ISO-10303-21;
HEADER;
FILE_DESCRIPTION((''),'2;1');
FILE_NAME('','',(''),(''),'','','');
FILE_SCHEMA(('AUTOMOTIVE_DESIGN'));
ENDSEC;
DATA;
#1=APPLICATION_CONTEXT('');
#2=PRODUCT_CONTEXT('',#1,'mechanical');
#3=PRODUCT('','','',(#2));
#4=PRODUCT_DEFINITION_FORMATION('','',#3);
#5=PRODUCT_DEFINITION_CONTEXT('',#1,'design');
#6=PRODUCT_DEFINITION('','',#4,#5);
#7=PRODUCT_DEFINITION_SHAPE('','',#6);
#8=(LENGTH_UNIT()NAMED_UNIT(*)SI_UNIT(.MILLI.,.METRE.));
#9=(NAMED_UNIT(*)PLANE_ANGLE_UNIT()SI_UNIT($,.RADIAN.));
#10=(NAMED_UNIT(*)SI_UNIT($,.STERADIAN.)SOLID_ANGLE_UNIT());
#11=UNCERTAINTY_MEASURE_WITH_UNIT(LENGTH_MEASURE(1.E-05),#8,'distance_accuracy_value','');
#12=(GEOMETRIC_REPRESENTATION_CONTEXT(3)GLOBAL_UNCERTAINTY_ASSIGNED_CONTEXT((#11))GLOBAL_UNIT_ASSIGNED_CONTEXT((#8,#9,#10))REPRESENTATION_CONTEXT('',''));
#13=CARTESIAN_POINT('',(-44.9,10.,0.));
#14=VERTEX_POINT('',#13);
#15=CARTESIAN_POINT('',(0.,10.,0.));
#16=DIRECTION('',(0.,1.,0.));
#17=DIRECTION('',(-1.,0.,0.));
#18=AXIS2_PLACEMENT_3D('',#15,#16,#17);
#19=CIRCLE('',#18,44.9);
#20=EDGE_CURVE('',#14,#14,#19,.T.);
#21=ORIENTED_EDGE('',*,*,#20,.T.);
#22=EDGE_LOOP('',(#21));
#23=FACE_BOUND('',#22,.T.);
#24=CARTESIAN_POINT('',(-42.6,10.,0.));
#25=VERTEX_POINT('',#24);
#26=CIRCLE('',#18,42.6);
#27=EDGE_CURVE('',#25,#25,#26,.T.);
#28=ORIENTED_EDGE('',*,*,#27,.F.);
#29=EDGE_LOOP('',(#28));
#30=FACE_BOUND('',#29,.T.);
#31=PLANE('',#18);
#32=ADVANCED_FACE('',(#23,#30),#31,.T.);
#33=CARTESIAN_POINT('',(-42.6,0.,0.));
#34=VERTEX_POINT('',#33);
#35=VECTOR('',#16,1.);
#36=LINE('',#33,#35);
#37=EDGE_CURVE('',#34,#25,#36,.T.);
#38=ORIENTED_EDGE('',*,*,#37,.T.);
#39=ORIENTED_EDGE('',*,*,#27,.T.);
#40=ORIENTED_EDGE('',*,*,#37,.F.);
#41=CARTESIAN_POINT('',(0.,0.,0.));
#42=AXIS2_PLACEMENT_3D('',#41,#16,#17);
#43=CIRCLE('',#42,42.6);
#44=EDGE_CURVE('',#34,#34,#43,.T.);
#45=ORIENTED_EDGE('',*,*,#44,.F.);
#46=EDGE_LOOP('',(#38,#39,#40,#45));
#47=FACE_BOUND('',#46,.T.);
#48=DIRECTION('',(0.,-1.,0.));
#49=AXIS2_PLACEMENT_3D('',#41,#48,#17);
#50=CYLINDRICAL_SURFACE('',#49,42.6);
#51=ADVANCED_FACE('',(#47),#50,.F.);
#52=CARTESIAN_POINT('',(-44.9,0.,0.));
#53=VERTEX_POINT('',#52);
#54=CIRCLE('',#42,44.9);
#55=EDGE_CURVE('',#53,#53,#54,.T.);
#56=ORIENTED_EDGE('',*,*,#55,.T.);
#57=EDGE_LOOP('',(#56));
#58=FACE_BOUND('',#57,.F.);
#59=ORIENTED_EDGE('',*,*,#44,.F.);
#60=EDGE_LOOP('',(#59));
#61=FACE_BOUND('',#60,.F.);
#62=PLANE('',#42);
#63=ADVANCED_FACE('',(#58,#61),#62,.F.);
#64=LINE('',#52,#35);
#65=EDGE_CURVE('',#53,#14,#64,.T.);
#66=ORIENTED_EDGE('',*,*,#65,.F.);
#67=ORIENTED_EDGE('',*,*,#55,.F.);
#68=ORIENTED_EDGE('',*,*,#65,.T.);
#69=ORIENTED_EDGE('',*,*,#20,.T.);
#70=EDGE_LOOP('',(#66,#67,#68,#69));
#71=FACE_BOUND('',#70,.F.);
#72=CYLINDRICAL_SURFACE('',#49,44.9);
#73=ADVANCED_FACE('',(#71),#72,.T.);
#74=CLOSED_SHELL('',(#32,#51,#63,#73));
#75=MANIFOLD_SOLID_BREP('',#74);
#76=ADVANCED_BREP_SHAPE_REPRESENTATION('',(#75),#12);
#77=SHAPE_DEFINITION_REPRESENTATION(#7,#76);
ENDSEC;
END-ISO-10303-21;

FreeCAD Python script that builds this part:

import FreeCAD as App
import Part
import Sketcher
from FreeCAD import Vector
Q = App.Units.Quantity

doc = App.newDocument("Part")
body = doc.addObject("PartDesign::Body", "Body")

# Sketch on XZ plane
sketch1 = body.newObject("Sketcher::SketchObject", "Sketch")
sketch1.AttachmentSupport = (doc.getObject("XZ_Plane"), [""])
sketch1.MapMode = "FlatFace"
sketch1.addGeometry([
    Part.Circle(Vector(0, 0, 0), Vector(0, 0, 1), 45),
    Part.Circle(Vector(0, 0, 0), Vector(0, 0, 1), 43),
], False)
sketch1.addConstraint([
    Sketcher.Constraint("Coincident", 0, 3, -1, 1),
    Sketcher.Constraint("Coincident", 1, 3, -1, 1),
    Sketcher.Constraint("Diameter", 0, Q("89.8 mm")),
    Sketcher.Constraint("Diameter", 1, Q("85.2 mm")),
])
pad1 = body.newObject("PartDesign::Pad", "Pad")
pad1.Profile = sketch1
pad1.Length = 10
pad1.Reversed = True

doc.recompute()
